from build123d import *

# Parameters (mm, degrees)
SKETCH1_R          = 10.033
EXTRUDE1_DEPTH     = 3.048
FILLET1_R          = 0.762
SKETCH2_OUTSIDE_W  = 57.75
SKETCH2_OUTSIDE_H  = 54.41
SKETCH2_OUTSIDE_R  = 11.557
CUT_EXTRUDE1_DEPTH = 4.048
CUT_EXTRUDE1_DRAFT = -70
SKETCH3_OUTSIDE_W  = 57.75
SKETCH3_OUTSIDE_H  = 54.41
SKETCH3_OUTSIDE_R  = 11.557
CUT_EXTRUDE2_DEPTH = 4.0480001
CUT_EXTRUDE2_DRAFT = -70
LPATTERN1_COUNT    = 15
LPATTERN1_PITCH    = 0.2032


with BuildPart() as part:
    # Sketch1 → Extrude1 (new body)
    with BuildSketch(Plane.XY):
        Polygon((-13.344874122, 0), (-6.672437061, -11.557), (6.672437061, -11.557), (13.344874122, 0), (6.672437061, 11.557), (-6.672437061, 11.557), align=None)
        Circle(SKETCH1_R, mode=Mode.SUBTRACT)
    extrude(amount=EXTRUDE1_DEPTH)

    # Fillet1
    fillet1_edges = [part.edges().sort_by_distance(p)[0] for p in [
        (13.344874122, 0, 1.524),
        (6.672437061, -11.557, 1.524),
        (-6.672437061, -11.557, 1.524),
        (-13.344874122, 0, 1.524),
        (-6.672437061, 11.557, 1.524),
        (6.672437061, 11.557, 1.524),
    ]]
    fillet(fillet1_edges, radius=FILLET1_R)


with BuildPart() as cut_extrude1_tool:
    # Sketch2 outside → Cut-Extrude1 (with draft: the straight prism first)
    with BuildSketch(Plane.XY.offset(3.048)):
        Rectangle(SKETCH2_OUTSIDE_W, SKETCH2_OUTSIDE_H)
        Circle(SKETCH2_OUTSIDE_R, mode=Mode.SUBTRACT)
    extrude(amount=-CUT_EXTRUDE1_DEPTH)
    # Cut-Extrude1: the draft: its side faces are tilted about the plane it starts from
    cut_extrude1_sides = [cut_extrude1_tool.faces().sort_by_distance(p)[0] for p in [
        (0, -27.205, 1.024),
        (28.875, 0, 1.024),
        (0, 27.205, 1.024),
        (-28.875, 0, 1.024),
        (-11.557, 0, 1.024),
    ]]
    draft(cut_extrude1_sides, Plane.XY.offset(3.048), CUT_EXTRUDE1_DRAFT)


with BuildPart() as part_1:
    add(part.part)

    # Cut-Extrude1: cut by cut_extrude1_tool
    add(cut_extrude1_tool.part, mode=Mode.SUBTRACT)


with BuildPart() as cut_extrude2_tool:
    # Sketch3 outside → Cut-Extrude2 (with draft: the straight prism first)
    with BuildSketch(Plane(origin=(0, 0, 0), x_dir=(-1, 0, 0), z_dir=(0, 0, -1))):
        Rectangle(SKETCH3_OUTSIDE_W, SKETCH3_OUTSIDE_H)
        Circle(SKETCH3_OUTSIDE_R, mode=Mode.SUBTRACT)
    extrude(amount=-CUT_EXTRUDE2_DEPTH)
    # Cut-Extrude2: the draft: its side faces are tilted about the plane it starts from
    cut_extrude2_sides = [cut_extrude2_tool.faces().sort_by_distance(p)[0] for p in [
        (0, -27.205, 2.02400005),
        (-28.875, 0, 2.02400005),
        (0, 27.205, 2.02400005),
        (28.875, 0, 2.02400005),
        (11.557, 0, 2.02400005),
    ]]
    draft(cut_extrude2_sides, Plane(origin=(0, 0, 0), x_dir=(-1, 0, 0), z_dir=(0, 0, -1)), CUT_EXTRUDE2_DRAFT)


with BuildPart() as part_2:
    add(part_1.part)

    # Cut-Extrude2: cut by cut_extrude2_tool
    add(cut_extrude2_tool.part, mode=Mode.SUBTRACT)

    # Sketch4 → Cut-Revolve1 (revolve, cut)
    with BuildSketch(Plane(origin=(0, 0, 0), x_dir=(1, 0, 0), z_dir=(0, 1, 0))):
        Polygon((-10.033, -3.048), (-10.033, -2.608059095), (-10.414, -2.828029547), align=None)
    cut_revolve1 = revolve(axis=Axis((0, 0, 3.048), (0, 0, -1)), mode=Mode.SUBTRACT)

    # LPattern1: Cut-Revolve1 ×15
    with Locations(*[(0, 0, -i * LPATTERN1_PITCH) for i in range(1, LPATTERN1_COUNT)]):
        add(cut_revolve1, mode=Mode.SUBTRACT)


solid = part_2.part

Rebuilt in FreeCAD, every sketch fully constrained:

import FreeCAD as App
import Part
import Sketcher

V = App.Vector
Q = App.Units.Quantity


def edges_at(feature, points):
    """Names of the edges that pass closest to the given points."""
    edges = feature.Shape.Edges
    near = lambda p: min(range(len(edges)), key=lambda i: edges[i].distToShape(Part.Vertex(*p))[0])
    return sorted({f"Edge{near(p) + 1}" for p in points})


def faces_at(feature, points):
    """Names of the faces that lie closest to the given points."""
    faces = feature.Shape.Faces
    near = lambda p: min(range(len(faces)), key=lambda i: faces[i].distToShape(Part.Vertex(*p))[0])
    return sorted({f"Face{near(p) + 1}" for p in points})

doc = App.newDocument("Part")
body = doc.addObject("PartDesign::Body", "Body")

# Sketch on XY plane
sketch1 = body.newObject("Sketcher::SketchObject", "Sketch")
sketch1.AttachmentSupport = (doc.getObject("XY_Plane"), [""])
sketch1.MapMode = "FlatFace"
sketch1.addGeometry([
    Part.LineSegment(V(-13, 0, 0), V(-7, -12, 0)),  # 0
    Part.LineSegment(V(-7, -12, 0), V(7, -12, 0)),  # 1
    Part.LineSegment(V(7, -12, 0), V(13, 0, 0)),  # 2
    Part.LineSegment(V(13, 0, 0), V(7, 12, 0)),  # 3
    Part.LineSegment(V(7, 12, 0), V(-7, 12, 0)),  # 4
    Part.LineSegment(V(-7, 12, 0), V(-13, 0, 0)),  # 5
    Part.Circle(V(0, 0, 0), V(0, 0, 1), 10),  # 6
], False)
sketch1.addConstraint([
    Sketcher.Constraint("Coincident", 0, 2, 1, 1),
    Sketcher.Constraint("Coincident", 1, 2, 2, 1),
    Sketcher.Constraint("Coincident", 2, 2, 3, 1),
    Sketcher.Constraint("Coincident", 3, 2, 4, 1),
    Sketcher.Constraint("Coincident", 4, 2, 5, 1),
    Sketcher.Constraint("Coincident", 5, 2, 0, 1),
    Sketcher.Constraint("Horizontal", 1),
    Sketcher.Constraint("Horizontal", 4),
    Sketcher.Constraint("Coincident", 6, 3, -1, 1),
    Sketcher.Constraint("Symmetric", 0, 2, 3, 2, -1, 1),
    Sketcher.Constraint("Symmetric", 2, 2, 5, 2, -1, 1),
    Sketcher.Constraint("PointOnObject", 2, 2, -1),
    Sketcher.Constraint("Parallel", 2, 5),
    Sketcher.Constraint("Vertical", 1, 2, 3, 2),
    Sketcher.Constraint("Diameter", 6, Q("0.79 in")),
    Sketcher.Constraint("Angle", 0, Q("-60 deg")),
    Sketcher.Constraint("DistanceY", 1, 2, 3, 2, Q("0.91 in")),
    Sketcher.Constraint("DistanceX", 1, 1, 1, 2, 13.344874),
])
pad1 = body.newObject("PartDesign::Pad", "Pad")
pad1.Profile = sketch1
pad1.Length = Q("0.12 in")
doc.recompute()

fillet = body.newObject("PartDesign::Fillet", "Fillet")
fillet.Base = (pad1, edges_at(pad1, [
    (13.345, 0, 1.524),
    (6.672, -11.557, 1.524),
    (-6.672, -11.557, 1.524),
    (-13.345, 0, 1.524),
    (-6.672, 11.557, 1.524),
    (6.672, 11.557, 1.524),
]))
fillet.Radius = Q("0.03 in")
body2 = doc.addObject("PartDesign::Body", "Body001")

# Sketch on XY plane
sketch2 = body2.newObject("Sketcher::SketchObject", "Sketch001")
sketch2.AttachmentSupport = (doc.getObject("XY_Plane001"), [""])
sketch2.MapMode = "FlatFace"
sketch2.AttachmentOffset = App.Placement(V(0, 0, 0.12 * 25.4), App.Rotation())
sketch2.addGeometry([
    Part.LineSegment(V(-29, 27, 0), V(-29, -27, 0)),  # 0
    Part.LineSegment(V(-29, -27, 0), V(29, -27, 0)),  # 1
    Part.LineSegment(V(29, -27, 0), V(29, 27, 0)),  # 2
    Part.LineSegment(V(29, 27, 0), V(-29, 27, 0)),  # 3
    Part.Circle(V(0, 0, 0), V(0, 0, 1), 12),  # 4
], False)
sketch2.addConstraint([
    Sketcher.Constraint("Coincident", 0, 2, 1, 1),
    Sketcher.Constraint("Coincident", 1, 2, 2, 1),
    Sketcher.Constraint("Coincident", 2, 2, 3, 1),
    Sketcher.Constraint("Coincident", 3, 2, 0, 1),
    Sketcher.Constraint("Vertical", 0),
    Sketcher.Constraint("Horizontal", 1),
    Sketcher.Constraint("Vertical", 2),
    Sketcher.Constraint("Horizontal", 3),
    Sketcher.Constraint("Coincident", 4, 3, -1, 1),
    Sketcher.Constraint("Symmetric", 0, 2, 2, 2, -1, 1),
    Sketcher.Constraint("Diameter", 4, Q("0.91 in")),
    Sketcher.Constraint("DistanceX", 1, 1, 1, 2, 57.75),
    Sketcher.Constraint("DistanceY", 0, 2, 0, 1, 54.41),
])
pad2 = body2.newObject("PartDesign::Pad", "Pad001")
pad2.Profile = sketch2
pad2.Length = 4.048
pad2.Reversed = True
doc.recompute()

datumplane = body2.newObject("PartDesign::Plane", "DatumPlane")
datumplane.AttachmentSupport = (doc.getObject("XY_Plane001"), [""])
datumplane.MapMode = "FlatFace"
datumplane.AttachmentOffset = App.Placement(V(0, 0, 0.12 * 25.4), App.Rotation())
draft = body2.newObject("PartDesign::Draft", "Draft")
draft.Base = (pad2, faces_at(pad2, [
    (0, -27.205, 1.024),
    (28.875, 0, 1.024),
    (0, 27.205, 1.024),
    (-28.875, 0, 1.024),
    (-11.557, 0, 1.024),
]))
draft.NeutralPlane = (datumplane, [""])
draft.Angle = 70
draft.Reversed = True
doc.recompute()

boolean = body.newObject("PartDesign::Boolean", "Boolean")
boolean.Type = "Cut"
boolean.addObjects([body2])
body3 = doc.addObject("PartDesign::Body", "Body002")

# Sketch on XY plane
sketch3 = body3.newObject("Sketcher::SketchObject", "Sketch002")
sketch3.AttachmentSupport = (doc.getObject("XY_Plane002"), [""])
sketch3.MapMode = "FlatFace"
sketch3.addGeometry([
    Part.LineSegment(V(29, 27, 0), V(29, -27, 0)),  # 0
    Part.LineSegment(V(29, -27, 0), V(-29, -27, 0)),  # 1
    Part.LineSegment(V(-29, -27, 0), V(-29, 27, 0)),  # 2
    Part.LineSegment(V(-29, 27, 0), V(29, 27, 0)),  # 3
    Part.Circle(V(0, 0, 0), V(0, 0, 1), 12),  # 4
], False)
sketch3.addConstraint([
    Sketcher.Constraint("Coincident", 0, 2, 1, 1),
    Sketcher.Constraint("Coincident", 1, 2, 2, 1),
    Sketcher.Constraint("Coincident", 2, 2, 3, 1),
    Sketcher.Constraint("Coincident", 3, 2, 0, 1),
    Sketcher.Constraint("Vertical", 0),
    Sketcher.Constraint("Horizontal", 1),
    Sketcher.Constraint("Vertical", 2),
    Sketcher.Constraint("Horizontal", 3),
    Sketcher.Constraint("Coincident", 4, 3, -1, 1),
    Sketcher.Constraint("Symmetric", 0, 2, 2, 2, -1, 1),
    Sketcher.Constraint("Diameter", 4, Q("0.91 in")),
    Sketcher.Constraint("DistanceX", 1, 2, 1, 1, 57.75),
    Sketcher.Constraint("DistanceY", 0, 2, 0, 1, 54.41),
])
pad3 = body3.newObject("PartDesign::Pad", "Pad002")
pad3.Profile = sketch3
pad3.Length = 4.048
doc.recompute()

draft2 = body3.newObject("PartDesign::Draft", "Draft001")
draft2.Base = (pad3, faces_at(pad3, [
    (0, -27.205, 2.024),
    (-28.875, 0, 2.024),
    (0, 27.205, 2.024),
    (28.875, 0, 2.024),
    (11.557, 0, 2.024),
]))
draft2.NeutralPlane = (doc.getObject("XY_Plane002"), [""])
draft2.Angle = 70
draft2.Reversed = False
doc.recompute()

boolean2 = body.newObject("PartDesign::Boolean", "Boolean001")
boolean2.Type = "Cut"
boolean2.addObjects([body3])

# Sketch on XZ plane
sketch4 = body.newObject("Sketcher::SketchObject", "Sketch003")
sketch4.AttachmentSupport = (doc.getObject("XZ_Plane"), [""])
sketch4.MapMode = "FlatFace"
sketch4.addGeometry([
    Part.LineSegment(V(-10.03, 3.05, 0), V(-10.03, 2.61, 0)),
    Part.LineSegment(V(-10.03, 2.61, 0), V(-10.41, 2.83, 0)),
    Part.LineSegment(V(-10.41, 2.83, 0), V(-10.03, 3.05, 0)),
], False)
sketch4.addConstraint([
    Sketcher.Constraint("Coincident", 0, 2, 1, 1),
    Sketcher.Constraint("Coincident", 1, 2, 2, 1),
    Sketcher.Constraint("Coincident", 2, 2, 0, 1),
    Sketcher.Constraint("Vertical", 0),
    Sketcher.Constraint("Equal", 1, 2),
    Sketcher.Constraint("Angle", 1, Q("150 deg")),
    Sketcher.Constraint("DistanceX", 1, 2, -1, 1, Q("0.41 in")),
    Sketcher.Constraint("DistanceY", -1, 1, 2, 2, Q("0.12 in")),
    Sketcher.Constraint("DistanceX", 0, 2, -1, 1, Q("0.395 in")),
])
groove = body.newObject("PartDesign::Groove", "Groove")
groove.Profile = sketch4
groove.ReferenceAxis = (sketch4, ["V_Axis"])
groove.Angle = 360
doc.recompute()

linearpattern = body.newObject("PartDesign::LinearPattern", "LinearPattern")
linearpattern.Originals = [groove]
linearpattern.Direction = (doc.getObject("Z_Axis"), [""])
linearpattern.Mode = "offset"
linearpattern.Offset = Q("0.008 in")
linearpattern.Occurrences = 15
linearpattern.Reversed = True
body.Tip = linearpattern

doc.recompute()
